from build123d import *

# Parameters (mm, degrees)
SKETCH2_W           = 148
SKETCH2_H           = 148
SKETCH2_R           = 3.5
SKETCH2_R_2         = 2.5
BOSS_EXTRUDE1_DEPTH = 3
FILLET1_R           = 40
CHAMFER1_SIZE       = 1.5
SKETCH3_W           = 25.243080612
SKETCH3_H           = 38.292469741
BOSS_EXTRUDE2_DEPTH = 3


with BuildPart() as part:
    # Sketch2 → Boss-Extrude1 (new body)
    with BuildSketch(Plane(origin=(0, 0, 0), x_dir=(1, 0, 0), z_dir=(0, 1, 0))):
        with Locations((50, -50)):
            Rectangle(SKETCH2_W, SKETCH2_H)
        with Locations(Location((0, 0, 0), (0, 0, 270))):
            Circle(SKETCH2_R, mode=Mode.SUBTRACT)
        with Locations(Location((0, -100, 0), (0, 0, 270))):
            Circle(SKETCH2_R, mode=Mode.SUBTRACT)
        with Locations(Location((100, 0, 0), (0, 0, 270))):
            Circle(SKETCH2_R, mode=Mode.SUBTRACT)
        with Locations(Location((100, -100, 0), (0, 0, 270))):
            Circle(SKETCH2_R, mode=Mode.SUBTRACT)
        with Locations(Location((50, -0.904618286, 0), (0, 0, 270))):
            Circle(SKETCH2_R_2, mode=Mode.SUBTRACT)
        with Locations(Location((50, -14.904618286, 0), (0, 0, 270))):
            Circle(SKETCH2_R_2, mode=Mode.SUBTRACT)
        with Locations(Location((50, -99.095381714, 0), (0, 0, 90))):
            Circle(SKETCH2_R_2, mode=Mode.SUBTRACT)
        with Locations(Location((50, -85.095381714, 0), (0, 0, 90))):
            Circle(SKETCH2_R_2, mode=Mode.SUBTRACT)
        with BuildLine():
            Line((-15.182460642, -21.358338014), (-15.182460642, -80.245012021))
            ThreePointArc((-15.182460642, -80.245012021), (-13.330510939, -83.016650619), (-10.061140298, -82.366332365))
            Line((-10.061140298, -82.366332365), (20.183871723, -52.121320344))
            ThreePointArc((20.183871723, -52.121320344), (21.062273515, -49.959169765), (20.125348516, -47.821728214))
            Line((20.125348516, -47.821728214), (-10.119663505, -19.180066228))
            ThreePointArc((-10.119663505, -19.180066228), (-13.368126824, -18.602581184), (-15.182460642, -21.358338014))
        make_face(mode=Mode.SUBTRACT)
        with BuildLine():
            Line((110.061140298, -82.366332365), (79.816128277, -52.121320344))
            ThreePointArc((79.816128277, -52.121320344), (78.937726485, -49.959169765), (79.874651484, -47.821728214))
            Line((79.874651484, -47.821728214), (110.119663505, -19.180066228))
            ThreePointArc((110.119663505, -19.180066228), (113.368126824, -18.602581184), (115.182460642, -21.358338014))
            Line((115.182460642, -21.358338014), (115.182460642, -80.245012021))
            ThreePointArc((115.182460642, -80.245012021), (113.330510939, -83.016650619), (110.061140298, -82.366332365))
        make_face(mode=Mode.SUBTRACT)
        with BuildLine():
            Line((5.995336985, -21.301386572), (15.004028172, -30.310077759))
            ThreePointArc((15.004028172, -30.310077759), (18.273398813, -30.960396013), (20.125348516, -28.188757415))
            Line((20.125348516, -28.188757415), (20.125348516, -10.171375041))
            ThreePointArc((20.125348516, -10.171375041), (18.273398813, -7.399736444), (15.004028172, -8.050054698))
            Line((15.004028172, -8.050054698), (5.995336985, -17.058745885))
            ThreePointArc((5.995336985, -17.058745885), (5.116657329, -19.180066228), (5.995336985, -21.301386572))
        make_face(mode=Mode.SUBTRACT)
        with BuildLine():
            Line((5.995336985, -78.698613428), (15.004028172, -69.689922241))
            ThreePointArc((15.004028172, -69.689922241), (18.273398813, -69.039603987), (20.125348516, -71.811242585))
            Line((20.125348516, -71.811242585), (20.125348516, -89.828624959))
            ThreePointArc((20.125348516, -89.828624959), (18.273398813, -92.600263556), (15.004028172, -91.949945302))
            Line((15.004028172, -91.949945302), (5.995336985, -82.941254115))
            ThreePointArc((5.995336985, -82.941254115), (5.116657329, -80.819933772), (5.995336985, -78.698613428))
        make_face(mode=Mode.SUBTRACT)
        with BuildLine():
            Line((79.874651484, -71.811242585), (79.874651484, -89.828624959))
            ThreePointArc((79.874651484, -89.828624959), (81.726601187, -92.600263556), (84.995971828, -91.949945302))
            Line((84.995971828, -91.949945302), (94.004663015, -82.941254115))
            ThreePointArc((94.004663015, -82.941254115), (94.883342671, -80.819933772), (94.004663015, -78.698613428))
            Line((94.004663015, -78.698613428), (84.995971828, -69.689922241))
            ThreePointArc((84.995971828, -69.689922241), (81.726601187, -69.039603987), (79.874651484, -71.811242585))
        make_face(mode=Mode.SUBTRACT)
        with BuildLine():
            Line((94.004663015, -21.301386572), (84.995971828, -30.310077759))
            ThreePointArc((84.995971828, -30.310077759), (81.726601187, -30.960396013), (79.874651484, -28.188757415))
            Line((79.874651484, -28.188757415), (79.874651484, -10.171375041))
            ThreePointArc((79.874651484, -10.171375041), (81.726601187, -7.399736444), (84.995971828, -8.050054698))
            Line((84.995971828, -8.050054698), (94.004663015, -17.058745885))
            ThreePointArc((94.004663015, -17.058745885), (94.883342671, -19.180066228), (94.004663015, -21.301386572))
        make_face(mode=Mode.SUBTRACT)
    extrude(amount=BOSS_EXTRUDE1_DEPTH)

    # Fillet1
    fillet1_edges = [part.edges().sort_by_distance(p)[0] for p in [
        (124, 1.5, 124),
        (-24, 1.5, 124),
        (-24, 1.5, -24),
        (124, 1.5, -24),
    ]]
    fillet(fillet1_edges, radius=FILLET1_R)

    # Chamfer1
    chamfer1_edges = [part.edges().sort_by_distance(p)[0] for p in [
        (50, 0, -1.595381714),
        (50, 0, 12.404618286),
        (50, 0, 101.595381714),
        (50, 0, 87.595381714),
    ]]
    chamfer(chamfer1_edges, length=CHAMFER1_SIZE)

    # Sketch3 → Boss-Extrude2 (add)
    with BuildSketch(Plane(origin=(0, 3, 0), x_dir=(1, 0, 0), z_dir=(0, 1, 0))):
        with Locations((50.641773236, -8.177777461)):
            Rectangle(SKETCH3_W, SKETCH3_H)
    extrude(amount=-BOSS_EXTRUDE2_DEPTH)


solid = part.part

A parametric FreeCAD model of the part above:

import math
import FreeCAD as App
import Part
import Sketcher
from FreeCAD import Vector
Q = App.Units.Quantity


def edges_at(feature, points):
    """Names of the edges that pass closest to the given points."""
    edges = feature.Shape.Edges
    near = lambda p: min(range(len(edges)), key=lambda i: edges[i].distToShape(Part.Vertex(*p))[0])
    return sorted({f"Edge{near(p) + 1}" for p in points})

doc = App.newDocument("Part")
body = doc.addObject("PartDesign::Body", "Body")

# Sketch on XZ plane
sketch1 = body.newObject("Sketcher::SketchObject", "Sketch")
sketch1.AttachmentSupport = (doc.getObject("XZ_Plane"), [""])
sketch1.MapMode = "FlatFace"
sketch1.addGeometry(Part.LineSegment(Vector(-24, -24, 0), Vector(-24, 124, 0)), False)
sketch1.addGeometry(Part.LineSegment(Vector(-24, 124, 0), Vector(124, 124, 0)), False)
sketch1.addGeometry(Part.LineSegment(Vector(124, 124, 0), Vector(124, -24, 0)), False)
sketch1.addGeometry(Part.LineSegment(Vector(124, -24, 0), Vector(-24, -24, 0)), False)
sketch1.addGeometry(Part.Circle(Vector(0, 100, 0), Vector(0, 0, 1), 3.5), False)
sketch1.addGeometry(Part.ArcOfCircle(Part.Circle(Vector(8.116657, 80.819934, 0), Vector(0, 0, 1), 3), math.radians(135), math.radians(225)), False)
sketch1.addGeometry(Part.LineSegment(Vector(5.995337, 78.698613, 0), Vector(15.004028, 69.689922, 0)), False)
sketch1.addGeometry(Part.ArcOfCircle(Part.Circle(Vector(17.125349, 71.811243, 0), Vector(0, 0, 1), 3), math.radians(-135), math.radians(0)), False)
sketch1.addGeometry(Part.LineSegment(Vector(20.125349, 71.811243, 0), Vector(20.125349, 89.828625, 0)), False)
sketch1.addGeometry(Part.ArcOfCircle(Part.Circle(Vector(17.125349, 89.828625, 0), Vector(0, 0, 1), 3), math.radians(0), math.radians(135)), False)
sketch1.addGeometry(Part.LineSegment(Vector(15.004028, 91.949945, 0), Vector(5.995337, 82.941254, 0)), False)
sketch1.addGeometry(Part.LineSegment(Vector(-15.182461, 80.245012, 0), Vector(-15.182461, 21.358338, 0)), False)
sketch1.addGeometry(Part.ArcOfCircle(Part.Circle(Vector(-12.182461, 21.358338, 0), Vector(0, 0, 1), 3), math.radians(180), math.radians(313.440352)), False)
sketch1.addGeometry(Part.LineSegment(Vector(-10.119664, 19.180066, 0), Vector(20.125349, 47.821728, 0)), False)
sketch1.addGeometry(Part.ArcOfCircle(Part.Circle(Vector(18.062551, 50, 0), Vector(0, 0, 1), 3), math.radians(-46.559648), math.radians(45)), False)
sketch1.addGeometry(Part.LineSegment(Vector(20.183872, 52.12132, 0), Vector(-10.06114, 82.366332, 0)), False)
sketch1.addGeometry(Part.ArcOfCircle(Part.Circle(Vector(-12.182461, 80.245012, 0), Vector(0, 0, 1), 3), math.radians(45), math.radians(180)), False)
sketch1.addGeometry(Part.Circle(Vector(50, 99.095382, 0), Vector(0, 0, 1), 2.5), False)
sketch1.addGeometry(Part.Circle(Vector(50, 85.095382, 0), Vector(0, 0, 1), 2.5), False)
sketch1.addGeometry(Part.Circle(Vector(100, 100, 0), Vector(0, 0, 1), 3.5), False)
sketch1.addGeometry(Part.LineSegment(Vector(79.874651, 89.828625, 0), Vector(79.874651, 71.811243, 0)), False)
sketch1.addGeometry(Part.ArcOfCircle(Part.Circle(Vector(82.874651, 71.811243, 0), Vector(0, 0, 1), 3), math.radians(180), math.radians(315)), False)
sketch1.addGeometry(Part.LineSegment(Vector(84.995972, 69.689922, 0), Vector(94.004663, 78.698613, 0)), False)
sketch1.addGeometry(Part.ArcOfCircle(Part.Circle(Vector(91.883343, 80.819934, 0), Vector(0, 0, 1), 3), math.radians(-45), math.radians(45)), False)
sketch1.addGeometry(Part.LineSegment(Vector(94.004663, 82.941254, 0), Vector(84.995972, 91.949945, 0)), False)
sketch1.addGeometry(Part.ArcOfCircle(Part.Circle(Vector(82.874651, 89.828625, 0), Vector(0, 0, 1), 3), math.radians(45), math.radians(180)), False)
sketch1.addGeometry(Part.ArcOfCircle(Part.Circle(Vector(112.182461, 80.245012, 0), Vector(0, 0, 1), 3), math.radians(0), math.radians(135)), False)
sketch1.addGeometry(Part.LineSegment(Vector(110.06114, 82.366332, 0), Vector(79.816128, 52.12132, 0)), False)
sketch1.addGeometry(Part.ArcOfCircle(Part.Circle(Vector(81.937449, 50, 0), Vector(0, 0, 1), 3), math.radians(135), math.radians(226.559648)), False)
sketch1.addGeometry(Part.LineSegment(Vector(79.874651, 47.821728, 0), Vector(110.119664, 19.180066, 0)), False)
sketch1.addGeometry(Part.ArcOfCircle(Part.Circle(Vector(112.182461, 21.358338, 0), Vector(0, 0, 1), 3), math.radians(-133.440352), math.radians(0)), False)
sketch1.addGeometry(Part.LineSegment(Vector(115.182461, 21.358338, 0), Vector(115.182461, 80.245012, 0)), False)
sketch1.addGeometry(Part.LineSegment(Vector(15.004028, 30.310078, 0), Vector(5.995337, 21.301387, 0)), False)
sketch1.addGeometry(Part.ArcOfCircle(Part.Circle(Vector(8.116657, 19.180066, 0), Vector(0, 0, 1), 3), math.radians(135), math.radians(225)), False)
sketch1.addGeometry(Part.LineSegment(Vector(5.995337, 17.058746, 0), Vector(15.004028, 8.050055, 0)), False)
sketch1.addGeometry(Part.ArcOfCircle(Part.Circle(Vector(17.125349, 10.171375, 0), Vector(0, 0, 1), 3), math.radians(-135), math.radians(0)), False)
sketch1.addGeometry(Part.LineSegment(Vector(20.125349, 10.171375, 0), Vector(20.125349, 28.188757, 0)), False)
sketch1.addGeometry(Part.ArcOfCircle(Part.Circle(Vector(17.125349, 28.188757, 0), Vector(0, 0, 1), 3), math.radians(0), math.radians(135)), False)
sketch1.addGeometry(Part.Circle(Vector(0, 0, 0), Vector(0, 0, 1), 3.5), False)
sketch1.addGeometry(Part.Circle(Vector(50, 14.904618, 0), Vector(0, 0, 1), 2.5), False)
sketch1.addGeometry(Part.Circle(Vector(50, 0.904618, 0), Vector(0, 0, 1), 2.5), False)
sketch1.addGeometry(Part.ArcOfCircle(Part.Circle(Vector(91.883343, 19.180066, 0), Vector(0, 0, 1), 3), math.radians(-45), math.radians(45)), False)
sketch1.addGeometry(Part.LineSegment(Vector(94.004663, 21.301387, 0), Vector(84.995972, 30.310078, 0)), False)
sketch1.addGeometry(Part.ArcOfCircle(Part.Circle(Vector(82.874651, 28.188757, 0), Vector(0, 0, 1), 3), math.radians(45), math.radians(180)), False)
sketch1.addGeometry(Part.LineSegment(Vector(79.874651, 28.188757, 0), Vector(79.874651, 10.171375, 0)), False)
sketch1.addGeometry(Part.ArcOfCircle(Part.Circle(Vector(82.874651, 10.171375, 0), Vector(0, 0, 1), 3), math.radians(-180), math.radians(-45)), False)
sketch1.addGeometry(Part.LineSegment(Vector(84.995972, 8.050055, 0), Vector(94.004663, 17.058746, 0)), False)
sketch1.addGeometry(Part.Circle(Vector(100, 0, 0), Vector(0, 0, 1), 3.5), False)
sketch1.addConstraint(Sketcher.Constraint("Coincident", 0, 2, 1, 1))
sketch1.addConstraint(Sketcher.Constraint("Coincident", 1, 2, 2, 1))
sketch1.addConstraint(Sketcher.Constraint("Coincident", 2, 2, 3, 1))
sketch1.addConstraint(Sketcher.Constraint("Coincident", 3, 2, 0, 1))
sketch1.addConstraint(Sketcher.Constraint("Tangent", 5, 2, 6, 1))
sketch1.addConstraint(Sketcher.Constraint("Tangent", 6, 2, 7, 1))
sketch1.addConstraint(Sketcher.Constraint("Tangent", 7, 2, 8, 1))
sketch1.addConstraint(Sketcher.Constraint("Tangent", 8, 2, 9, 1))
sketch1.addConstraint(Sketcher.Constraint("Tangent", 9, 2, 10, 1))
sketch1.addConstraint(Sketcher.Constraint("Tangent", 10, 2, 5, 1))
sketch1.addConstraint(Sketcher.Constraint("Tangent", 11, 2, 12, 1))
sketch1.addConstraint(Sketcher.Constraint("Tangent", 12, 2, 13, 1))
sketch1.addConstraint(Sketcher.Constraint("Tangent", 13, 2, 14, 1))
sketch1.addConstraint(Sketcher.Constraint("Tangent", 14, 2, 15, 1))
sketch1.addConstraint(Sketcher.Constraint("Tangent", 15, 2, 16, 1))
sketch1.addConstraint(Sketcher.Constraint("Tangent", 16, 2, 11, 1))
sketch1.addConstraint(Sketcher.Constraint("Tangent", 20, 2, 21, 1))
sketch1.addConstraint(Sketcher.Constraint("Tangent", 21, 2, 22, 1))
sketch1.addConstraint(Sketcher.Constraint("Tangent", 22, 2, 23, 1))
sketch1.addConstraint(Sketcher.Constraint("Tangent", 23, 2, 24, 1))
sketch1.addConstraint(Sketcher.Constraint("Tangent", 24, 2, 25, 1))
sketch1.addConstraint(Sketcher.Constraint("Tangent", 25, 2, 20, 1))
sketch1.addConstraint(Sketcher.Constraint("Tangent", 26, 2, 27, 1))
sketch1.addConstraint(Sketcher.Constraint("Tangent", 27, 2, 28, 1))
sketch1.addConstraint(Sketcher.Constraint("Tangent", 28, 2, 29, 1))
sketch1.addConstraint(Sketcher.Constraint("Tangent", 29, 2, 30, 1))
sketch1.addConstraint(Sketcher.Constraint("Tangent", 30, 2, 31, 1))
sketch1.addConstraint(Sketcher.Constraint("Tangent", 31, 2, 26, 1))
sketch1.addConstraint(Sketcher.Constraint("Tangent", 32, 2, 33, 1))
sketch1.addConstraint(Sketcher.Constraint("Tangent", 33, 2, 34, 1))
sketch1.addConstraint(Sketcher.Constraint("Tangent", 34, 2, 35, 1))
sketch1.addConstraint(Sketcher.Constraint("Tangent", 35, 2, 36, 1))
sketch1.addConstraint(Sketcher.Constraint("Tangent", 36, 2, 37, 1))
sketch1.addConstraint(Sketcher.Constraint("Tangent", 37, 2, 32, 1))
sketch1.addConstraint(Sketcher.Constraint("Tangent", 41, 2, 42, 1))
sketch1.addConstraint(Sketcher.Constraint("Tangent", 42, 2, 43, 1))
sketch1.addConstraint(Sketcher.Constraint("Tangent", 43, 2, 44, 1))
sketch1.addConstraint(Sketcher.Constraint("Tangent", 44, 2, 45, 1))
sketch1.addConstraint(Sketcher.Constraint("Tangent", 45, 2, 46, 1))
sketch1.addConstraint(Sketcher.Constraint("Tangent", 46, 2, 41, 1))
sketch1.addConstraint(Sketcher.Constraint("Vertical", 0))
sketch1.addConstraint(Sketcher.Constraint("Horizontal", 1))
sketch1.addConstraint(Sketcher.Constraint("Vertical", 2))
sketch1.addConstraint(Sketcher.Constraint("Horizontal", 3))
sketch1.addConstraint(Sketcher.Constraint("Vertical", 8))
sketch1.addConstraint(Sketcher.Constraint("Vertical", 11))
sketch1.addConstraint(Sketcher.Constraint("Vertical", 20))
sketch1.addConstraint(Sketcher.Constraint("Vertical", 31))
sketch1.addConstraint(Sketcher.Constraint("Vertical", 36))
sketch1.addConstraint(Sketcher.Constraint("Vertical", 44))
sketch1.addConstraint(Sketcher.Constraint("Coincident", 38, 3, -1, 1))
sketch1.addConstraint(Sketcher.Constraint("Equal", 5, 7))
sketch1.addConstraint(Sketcher.Constraint("Equal", 7, 9))
sketch1.addConstraint(Sketcher.Constraint("Equal", 9, 12))
sketch1.addConstraint(Sketcher.Constraint("Equal", 12, 14))
sketch1.addConstraint(Sketcher.Constraint("Equal", 14, 16))
sketch1.addConstraint(Sketcher.Constraint("Equal", 17, 18))
sketch1.addConstraint(Sketcher.Constraint("Equal", 4, 19))
sketch1.addConstraint(Sketcher.Constraint("Equal", 16, 21))
sketch1.addConstraint(Sketcher.Constraint("Equal", 21, 23))
sketch1.addConstraint(Sketcher.Constraint("Equal", 23, 25))
sketch1.addConstraint(Sketcher.Constraint("Equal", 25, 26))
sketch1.addConstraint(Sketcher.Constraint("Equal", 26, 28))
sketch1.addConstraint(Sketcher.Constraint("Equal", 28, 30))
sketch1.addConstraint(Sketcher.Constraint("Equal", 30, 33))
sketch1.addConstraint(Sketcher.Constraint("Equal", 33, 35))
sketch1.addConstraint(Sketcher.Constraint("Equal", 35, 37))
sketch1.addConstraint(Sketcher.Constraint("Equal", 19, 38))
sketch1.addConstraint(Sketcher.Constraint("Equal", 18, 39))
sketch1.addConstraint(Sketcher.Constraint("Equal", 39, 40))
sketch1.addConstraint(Sketcher.Constraint("Equal", 37, 41))
sketch1.addConstraint(Sketcher.Constraint("Equal", 41, 43))
sketch1.addConstraint(Sketcher.Constraint("Equal", 43, 45))
sketch1.addConstraint(Sketcher.Constraint("Equal", 38, 47))
sketch1.addConstraint(Sketcher.Constraint("PointOnObject", 4, 3, -2))
sketch1.addConstraint(Sketcher.Constraint("PointOnObject", 47, 3, -1))
sketch1.addConstraint(Sketcher.Constraint("Perpendicular", 6, 10))
sketch1.addConstraint(Sketcher.Constraint("Perpendicular", 10, 15))
sketch1.addConstraint(Sketcher.Constraint("Perpendicular", 15, 22))
sketch1.addConstraint(Sketcher.Constraint("Perpendicular", 22, 24))
sketch1.addConstraint(Sketcher.Constraint("Perpendicular", 24, 27))
sketch1.addConstraint(Sketcher.Constraint("Parallel", 27, 32))
sketch1.addConstraint(Sketcher.Constraint("Perpendicular", 32, 34))
sketch1.addConstraint(Sketcher.Constraint("Parallel", 34, 42))
sketch1.addConstraint(Sketcher.Constraint("Perpendicular", 42, 46))
sketch1.addConstraint(Sketcher.Constraint("Horizontal", 4, 3, 19, 3))
sketch1.addConstraint(Sketcher.Constraint("Horizontal", 7, 3, 21, 3))
sketch1.addConstraint(Sketcher.Constraint("Horizontal", 5, 3, 23, 3))
sketch1.addConstraint(Sketcher.Constraint("Horizontal", 9, 3, 25, 3))
sketch1.addConstraint(Sketcher.Constraint("Horizontal", 16, 3, 26, 3))
sketch1.addConstraint(Sketcher.Constraint("Horizontal", 14, 3, 28, 3))
sketch1.addConstraint(Sketcher.Constraint("Horizontal", 12, 3, 30, 3))
sketch1.addConstraint(Sketcher.Constraint("Horizontal", 33, 3, 41, 3))
sketch1.addConstraint(Sketcher.Constraint("Horizontal", 37, 3, 43, 3))
sketch1.addConstraint(Sketcher.Constraint("Horizontal", 41, 3, 12, 2))
sketch1.addConstraint(Sketcher.Constraint("Vertical", 17, 3, 18, 3))
sketch1.addConstraint(Sketcher.Constraint("Vertical", 5, 3, 33, 3))
sketch1.addConstraint(Sketcher.Constraint("Vertical", 9, 3, 35, 3))
sketch1.addConstraint(Sketcher.Constraint("Vertical", 18, 3, 39, 3))
sketch1.addConstraint(Sketcher.Constraint("Vertical", 39, 3, 40, 3))
sketch1.addConstraint(Sketcher.Constraint("Vertical", 23, 3, 41, 3))
sketch1.addConstraint(Sketcher.Constraint("Vertical", 19, 3, 47, 3))
sketch1.addConstraint(Sketcher.Constraint("Vertical", 8, 2, 13, 2))
sketch1.addConstraint(Sketcher.Constraint("Vertical", 25, 2, 28, 2))
sketch1.addConstraint(Sketcher.Constraint("Equal", 3, 0))
sketch1.addConstraint(Sketcher.Constraint("Diameter", 4, Q("7 mm")))
sketch1.addConstraint(Sketcher.Constraint("Diameter", 17, Q("5 mm")))
sketch1.addConstraint(Sketcher.Constraint("Radius", 5, Q("3 mm")))
sketch1.addConstraint(Sketcher.Constraint("DistanceX", 1, 1, 1, 2, Q("148 mm")))
sketch1.addConstraint(Sketcher.Constraint("DistanceY", -1, 1, 4, 3, Q("100 mm")))
sketch1.addConstraint(Sketcher.Constraint("DistanceY", -1, 1, 14, 3, Q("50 mm")))
sketch1.addConstraint(Sketcher.Constraint("DistanceX", -1, 1, 17, 3, Q("50 mm")))
sketch1.addConstraint(Sketcher.Constraint("DistanceX", -1, 1, 19, 3, Q("100 mm")))
sketch1.addConstraint(Sketcher.Constraint("DistanceX", 0, 2, -1, 1, Q("24 mm")))
sketch1.addConstraint(Sketcher.Constraint("DistanceY", -1, 1, 0, 2, Q("124 mm")))
sketch1.addConstraint(Sketcher.Constraint("Distance", 13, Q("41.654598 mm")))
sketch1.addConstraint(Sketcher.Constraint("DistanceY", 8, 1, 8, 2, Q("18.017382 mm")))
sketch1.addConstraint(Sketcher.Constraint("DistanceY", 11, 2, 11, 1, Q("58.886674 mm")))
sketch1.addConstraint(Sketcher.Constraint("DistanceX", -1, 1, 7, 3, Q("17.125349 mm")))
sketch1.addConstraint(Sketcher.Constraint("DistanceY", -1, 1, 17, 3, Q("99.095382 mm")))
sketch1.addConstraint(Sketcher.Constraint("DistanceY", -1, 1, 18, 3, Q("85.095382 mm")))
sketch1.addConstraint(Sketcher.Constraint("DistanceX", -1, 1, 21, 3, Q("82.874651 mm")))
sketch1.addConstraint(Sketcher.Constraint("DistanceY", -1, 1, 39, 3, Q("14.904618 mm")))
sketch1.addConstraint(Sketcher.Constraint("DistanceY", -1, 1, 40, 3, Q("0.904618 mm")))
sketch1.addConstraint(Sketcher.Constraint("DistanceY", -1, 1, 5, 3, Q("80.819934 mm")))
pad1 = body.newObject("PartDesign::Pad", "Pad")
pad1.Profile = sketch1
pad1.Length = 3
pad1.Reversed = True
doc.recompute()

fillet = body.newObject("PartDesign::Fillet", "Fillet")
fillet.Base = (pad1, edges_at(pad1, [
    (124, 1.5, 124),
    (-24, 1.5, 124),
    (-24, 1.5, -24),
    (124, 1.5, -24),
]))
fillet.Radius = 40
doc.recompute()

chamfer = body.newObject("PartDesign::Chamfer", "Chamfer")
chamfer.Base = (fillet, edges_at(fillet, [
    (50, 0, -1.595),
    (50, 0, 12.405),
    (50, 0, 101.595),
    (50, 0, 87.595),
]))
chamfer.Size = 1.5

# Sketch on XZ plane
sketch2 = body.newObject("Sketcher::SketchObject", "Sketch001")
sketch2.AttachmentSupport = (doc.getObject("XZ_Plane"), [""])
sketch2.MapMode = "FlatFace"
sketch2.AttachmentOffset = App.Placement(Vector(0, 0, -3), App.Rotation())
sketch2.addGeometry(Part.LineSegment(Vector(38.020233, -10.968457, 0), Vector(38.020233, 27.324012, 0)), False)
sketch2.addGeometry(Part.LineSegment(Vector(38.020233, 27.324012, 0), Vector(63.263314, 27.324012, 0)), False)
sketch2.addGeometry(Part.LineSegment(Vector(63.263314, 27.324012, 0), Vector(63.263314, -10.968457, 0)), False)
sketch2.addGeometry(Part.LineSegment(Vector(63.263314, -10.968457, 0), Vector(38.020233, -10.968457, 0)), False)
sketch2.addConstraint(Sketcher.Constraint("Coincident", 0, 2, 1, 1))
sketch2.addConstraint(Sketcher.Constraint("Coincident", 1, 2, 2, 1))
sketch2.addConstraint(Sketcher.Constraint("Coincident", 2, 2, 3, 1))
sketch2.addConstraint(Sketcher.Constraint("Coincident", 3, 2, 0, 1))
sketch2.addConstraint(Sketcher.Constraint("Vertical", 0))
sketch2.addConstraint(Sketcher.Constraint("Horizontal", 1))
sketch2.addConstraint(Sketcher.Constraint("Vertical", 2))
sketch2.addConstraint(Sketcher.Constraint("Horizontal", 3))
sketch2.addConstraint(Sketcher.Constraint("DistanceX", 1, 1, 1, 2, Q("25.243081 mm")))
sketch2.addConstraint(Sketcher.Constraint("DistanceY", 0, 1, 0, 2, Q("38.29247 mm")))
sketch2.addConstraint(Sketcher.Constraint("DistanceX", -1, 1, 0, 2, Q("38.020233 mm")))
sketch2.addConstraint(Sketcher.Constraint("DistanceY", -1, 1, 0, 2, Q("27.324012 mm")))
pad2 = body.newObject("PartDesign::Pad", "Pad001")
pad2.Profile = sketch2
pad2.Length = 3

doc.recompute()
